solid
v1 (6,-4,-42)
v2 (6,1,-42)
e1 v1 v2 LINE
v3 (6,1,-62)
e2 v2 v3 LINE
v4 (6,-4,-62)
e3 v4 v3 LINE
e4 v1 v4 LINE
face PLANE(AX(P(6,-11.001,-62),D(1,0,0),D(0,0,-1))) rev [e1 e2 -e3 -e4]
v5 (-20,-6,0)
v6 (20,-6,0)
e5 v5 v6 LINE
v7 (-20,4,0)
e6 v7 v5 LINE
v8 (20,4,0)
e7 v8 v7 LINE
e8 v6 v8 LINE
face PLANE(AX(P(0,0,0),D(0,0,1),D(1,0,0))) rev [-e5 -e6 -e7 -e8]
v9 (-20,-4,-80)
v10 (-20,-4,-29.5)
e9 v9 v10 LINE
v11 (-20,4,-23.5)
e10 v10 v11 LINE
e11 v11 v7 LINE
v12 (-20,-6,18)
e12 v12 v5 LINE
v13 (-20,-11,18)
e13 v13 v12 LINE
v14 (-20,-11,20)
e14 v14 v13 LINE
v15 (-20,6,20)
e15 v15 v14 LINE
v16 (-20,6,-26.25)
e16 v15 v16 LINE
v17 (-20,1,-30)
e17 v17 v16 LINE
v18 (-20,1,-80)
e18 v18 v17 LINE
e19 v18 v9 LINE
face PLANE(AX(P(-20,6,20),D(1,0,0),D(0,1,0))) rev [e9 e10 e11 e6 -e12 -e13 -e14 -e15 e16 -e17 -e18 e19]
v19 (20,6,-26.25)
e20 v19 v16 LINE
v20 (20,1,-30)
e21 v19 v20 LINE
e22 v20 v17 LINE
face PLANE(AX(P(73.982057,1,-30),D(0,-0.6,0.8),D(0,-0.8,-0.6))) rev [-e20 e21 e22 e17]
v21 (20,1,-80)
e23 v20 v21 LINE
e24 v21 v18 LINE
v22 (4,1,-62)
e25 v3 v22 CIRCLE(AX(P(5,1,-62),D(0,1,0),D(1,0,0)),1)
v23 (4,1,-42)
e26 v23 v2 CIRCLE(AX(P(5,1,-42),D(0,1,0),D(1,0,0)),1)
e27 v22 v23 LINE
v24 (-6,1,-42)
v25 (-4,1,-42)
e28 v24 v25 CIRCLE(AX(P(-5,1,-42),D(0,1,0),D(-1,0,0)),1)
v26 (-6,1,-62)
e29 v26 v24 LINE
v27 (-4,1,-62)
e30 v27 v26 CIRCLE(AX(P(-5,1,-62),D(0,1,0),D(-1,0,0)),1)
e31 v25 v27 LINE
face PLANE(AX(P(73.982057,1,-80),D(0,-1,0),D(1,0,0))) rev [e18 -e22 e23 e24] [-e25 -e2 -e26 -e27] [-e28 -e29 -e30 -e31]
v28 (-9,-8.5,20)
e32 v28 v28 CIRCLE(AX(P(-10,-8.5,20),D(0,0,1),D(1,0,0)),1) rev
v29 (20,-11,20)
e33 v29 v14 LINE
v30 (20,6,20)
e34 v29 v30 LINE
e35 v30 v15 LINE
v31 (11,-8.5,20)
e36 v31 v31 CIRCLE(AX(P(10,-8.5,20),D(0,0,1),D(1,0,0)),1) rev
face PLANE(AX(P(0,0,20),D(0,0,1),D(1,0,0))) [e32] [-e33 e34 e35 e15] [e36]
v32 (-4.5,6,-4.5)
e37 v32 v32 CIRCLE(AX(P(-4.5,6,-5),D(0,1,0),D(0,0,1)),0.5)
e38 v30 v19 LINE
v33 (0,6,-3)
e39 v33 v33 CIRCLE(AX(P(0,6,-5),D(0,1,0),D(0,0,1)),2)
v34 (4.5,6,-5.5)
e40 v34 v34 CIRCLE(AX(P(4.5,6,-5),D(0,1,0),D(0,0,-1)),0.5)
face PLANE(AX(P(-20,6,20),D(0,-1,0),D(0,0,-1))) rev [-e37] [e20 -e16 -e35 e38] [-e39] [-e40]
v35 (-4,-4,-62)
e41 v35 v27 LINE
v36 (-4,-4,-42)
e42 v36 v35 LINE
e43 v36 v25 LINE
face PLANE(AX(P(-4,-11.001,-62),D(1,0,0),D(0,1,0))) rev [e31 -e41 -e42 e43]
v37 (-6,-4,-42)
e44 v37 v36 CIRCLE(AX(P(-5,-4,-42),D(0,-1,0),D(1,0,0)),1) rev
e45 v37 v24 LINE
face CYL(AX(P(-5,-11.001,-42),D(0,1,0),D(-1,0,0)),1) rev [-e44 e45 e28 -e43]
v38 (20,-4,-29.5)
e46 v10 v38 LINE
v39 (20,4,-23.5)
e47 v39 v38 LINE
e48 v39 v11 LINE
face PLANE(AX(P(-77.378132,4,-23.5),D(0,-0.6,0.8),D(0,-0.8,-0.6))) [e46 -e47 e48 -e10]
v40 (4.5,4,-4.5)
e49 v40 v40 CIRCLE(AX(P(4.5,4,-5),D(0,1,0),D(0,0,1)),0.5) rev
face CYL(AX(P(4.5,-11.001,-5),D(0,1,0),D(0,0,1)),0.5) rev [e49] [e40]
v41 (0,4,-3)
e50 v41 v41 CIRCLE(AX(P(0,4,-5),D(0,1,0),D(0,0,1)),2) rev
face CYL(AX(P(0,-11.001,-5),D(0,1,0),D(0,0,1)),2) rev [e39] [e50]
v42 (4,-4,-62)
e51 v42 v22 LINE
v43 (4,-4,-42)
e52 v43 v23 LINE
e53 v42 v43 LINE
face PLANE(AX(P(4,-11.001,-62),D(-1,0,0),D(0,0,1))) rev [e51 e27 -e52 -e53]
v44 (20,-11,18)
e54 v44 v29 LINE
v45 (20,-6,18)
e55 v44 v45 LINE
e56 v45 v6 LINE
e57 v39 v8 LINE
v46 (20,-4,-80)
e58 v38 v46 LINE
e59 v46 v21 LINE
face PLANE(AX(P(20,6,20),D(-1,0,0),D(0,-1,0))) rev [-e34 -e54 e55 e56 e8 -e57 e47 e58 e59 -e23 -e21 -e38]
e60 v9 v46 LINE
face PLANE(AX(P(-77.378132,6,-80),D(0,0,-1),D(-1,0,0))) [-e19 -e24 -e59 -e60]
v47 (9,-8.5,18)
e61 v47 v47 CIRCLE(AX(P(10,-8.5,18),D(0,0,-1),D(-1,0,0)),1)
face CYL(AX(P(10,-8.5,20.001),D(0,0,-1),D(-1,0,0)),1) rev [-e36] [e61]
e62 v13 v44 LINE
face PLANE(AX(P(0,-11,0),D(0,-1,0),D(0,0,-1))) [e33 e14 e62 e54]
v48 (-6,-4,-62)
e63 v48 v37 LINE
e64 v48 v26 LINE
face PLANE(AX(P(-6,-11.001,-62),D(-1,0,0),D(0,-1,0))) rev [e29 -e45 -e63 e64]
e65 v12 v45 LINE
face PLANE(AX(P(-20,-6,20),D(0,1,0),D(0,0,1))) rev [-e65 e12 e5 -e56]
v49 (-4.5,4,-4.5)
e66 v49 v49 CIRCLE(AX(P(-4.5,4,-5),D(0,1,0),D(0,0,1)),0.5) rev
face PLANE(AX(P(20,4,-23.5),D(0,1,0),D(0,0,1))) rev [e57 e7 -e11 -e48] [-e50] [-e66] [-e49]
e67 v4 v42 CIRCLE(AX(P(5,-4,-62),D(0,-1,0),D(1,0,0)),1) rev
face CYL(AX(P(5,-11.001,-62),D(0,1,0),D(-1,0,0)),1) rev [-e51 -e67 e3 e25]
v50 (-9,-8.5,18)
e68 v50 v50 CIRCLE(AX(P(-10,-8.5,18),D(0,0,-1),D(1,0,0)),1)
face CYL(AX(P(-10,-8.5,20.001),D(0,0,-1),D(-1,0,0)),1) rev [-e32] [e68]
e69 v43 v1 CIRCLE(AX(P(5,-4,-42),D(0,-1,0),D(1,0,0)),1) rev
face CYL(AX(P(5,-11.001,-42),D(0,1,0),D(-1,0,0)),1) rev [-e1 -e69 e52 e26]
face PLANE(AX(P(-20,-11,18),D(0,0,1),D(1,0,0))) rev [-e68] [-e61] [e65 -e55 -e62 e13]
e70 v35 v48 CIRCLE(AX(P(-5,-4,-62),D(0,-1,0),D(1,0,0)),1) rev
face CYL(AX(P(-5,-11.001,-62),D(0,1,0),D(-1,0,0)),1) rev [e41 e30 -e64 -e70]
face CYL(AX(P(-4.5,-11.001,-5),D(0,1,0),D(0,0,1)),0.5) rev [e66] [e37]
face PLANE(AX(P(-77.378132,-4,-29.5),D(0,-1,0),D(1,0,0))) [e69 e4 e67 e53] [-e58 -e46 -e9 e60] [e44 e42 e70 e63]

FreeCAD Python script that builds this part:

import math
import FreeCAD as App
import Part
import Sketcher
from FreeCAD import Vector
Q = App.Units.Quantity

doc = App.newDocument("Part")
body = doc.addObject("PartDesign::Body", "Body")

sketch1 = doc.addObject("Sketcher::SketchObject", "Sketch")
body.addObject(sketch1)
sketch1.AttachmentSupport = (doc.XY_Plane, [""])
sketch1.MapMode = "FlatFace"
sketch1.addGeometry(Part.LineSegment(Vector(-20, 6, 0), Vector(-20, -6, 0)), False)
sketch1.addGeometry(Part.LineSegment(Vector(-20, -6, 0), Vector(20, -6, 0)), False)
sketch1.addGeometry(Part.LineSegment(Vector(20, -6, 0), Vector(20, 6, 0)), False)
sketch1.addGeometry(Part.LineSegment(Vector(20, 6, 0), Vector(-20, 6, 0)), False)
sketch1.addConstraint(Sketcher.Constraint("Coincident", 0, 2, 1, 1))
sketch1.addConstraint(Sketcher.Constraint("Coincident", 1, 2, 2, 1))
sketch1.addConstraint(Sketcher.Constraint("Coincident", 2, 2, 3, 1))
sketch1.addConstraint(Sketcher.Constraint("Coincident", 3, 2, 0, 1))
sketch1.addConstraint(Sketcher.Constraint("Vertical", 0))
sketch1.addConstraint(Sketcher.Constraint("Horizontal", 1))
sketch1.addConstraint(Sketcher.Constraint("Vertical", 2))
sketch1.addConstraint(Sketcher.Constraint("Horizontal", 3))
sketch1.addConstraint(Sketcher.Constraint("Symmetric", 0, 2, 2, 2, -1, 1))
sketch1.addConstraint(Sketcher.Constraint("DistanceX", 1, 1, 1, 2, Q("40 mm")))
sketch1.addConstraint(Sketcher.Constraint("DistanceY", 0, 2, 0, 1, Q("12 mm")))
pad1 = doc.addObject("PartDesign::Pad", "Pad")
body.addObject(pad1)
pad1.Profile = sketch1
pad1.Length = 20

sketch2 = doc.addObject("Sketcher::SketchObject", "Sketch001")
body.addObject(sketch2)
sketch2.AttachmentSupport = (doc.XY_Plane, [""])
sketch2.MapMode = "FlatFace"
sketch2.addGeometry(Part.LineSegment(Vector(20, 6, 0), Vector(20, 4, 0)), False)
sketch2.addGeometry(Part.LineSegment(Vector(20, 4, 0), Vector(-20, 4, 0)), False)
sketch2.addGeometry(Part.LineSegment(Vector(-20, 4, 0), Vector(-20, 6, 0)), False)
sketch2.addGeometry(Part.LineSegment(Vector(-20, 6, 0), Vector(20, 6, 0)), False)
sketch2.addConstraint(Sketcher.Constraint("Coincident", 0, 2, 1, 1))
sketch2.addConstraint(Sketcher.Constraint("Coincident", 1, 2, 2, 1))
sketch2.addConstraint(Sketcher.Constraint("Coincident", 2, 2, 3, 1))
sketch2.addConstraint(Sketcher.Constraint("Coincident", 3, 2, 0, 1))
sketch2.addConstraint(Sketcher.Constraint("Vertical", 0))
sketch2.addConstraint(Sketcher.Constraint("Horizontal", 1))
sketch2.addConstraint(Sketcher.Constraint("Vertical", 2))
sketch2.addConstraint(Sketcher.Constraint("Horizontal", 3))
sketch2.addConstraint(Sketcher.Constraint("DistanceX", 1, 2, 1, 1, Q("40 mm")))
sketch2.addConstraint(Sketcher.Constraint("DistanceY", 0, 2, 0, 1, Q("2 mm")))
sketch2.addConstraint(Sketcher.Constraint("DistanceX", -1, 1, 0, 2, Q("20 mm")))
sketch2.addConstraint(Sketcher.Constraint("DistanceY", -1, 1, 0, 2, Q("4 mm")))
pad2 = doc.addObject("PartDesign::Pad", "Pad001")
body.addObject(pad2)
pad2.Profile = sketch2
pad2.Length = 23.5
pad2.Reversed = True

sketch3 = doc.addObject("Sketcher::SketchObject", "Sketch002")
body.addObject(sketch3)
sketch3.AttachmentSupport = (doc.XZ_Plane, [""])
sketch3.MapMode = "FlatFace"
sketch3.AttachmentOffset = App.Placement(Vector(0, 0, 6), App.Rotation())
sketch3.addGeometry(Part.LineSegment(Vector(-20, 20, 0), Vector(-20, 18, 0)), False)
sketch3.addGeometry(Part.LineSegment(Vector(-20, 18, 0), Vector(20, 18, 0)), False)
sketch3.addGeometry(Part.LineSegment(Vector(20, 18, 0), Vector(20, 20, 0)), False)
sketch3.addGeometry(Part.LineSegment(Vector(20, 20, 0), Vector(-20, 20, 0)), False)
sketch3.addConstraint(Sketcher.Constraint("Coincident", 0, 2, 1, 1))
sketch3.addConstraint(Sketcher.Constraint("Coincident", 1, 2, 2, 1))
sketch3.addConstraint(Sketcher.Constraint("Coincident", 2, 2, 3, 1))
sketch3.addConstraint(Sketcher.Constraint("Coincident", 3, 2, 0, 1))
sketch3.addConstraint(Sketcher.Constraint("Vertical", 0))
sketch3.addConstraint(Sketcher.Constraint("Horizontal", 1))
sketch3.addConstraint(Sketcher.Constraint("Vertical", 2))
sketch3.addConstraint(Sketcher.Constraint("Horizontal", 3))
sketch3.addConstraint(Sketcher.Constraint("DistanceX", 1, 1, 1, 2, Q("40 mm")))
sketch3.addConstraint(Sketcher.Constraint("DistanceY", 0, 2, 0, 1, Q("2 mm")))
sketch3.addConstraint(Sketcher.Constraint("DistanceX", 0, 2, -1, 1, Q("20 mm")))
sketch3.addConstraint(Sketcher.Constraint("DistanceY", -1, 1, 0, 2, Q("18 mm")))
pad3 = doc.addObject("PartDesign::Pad", "Pad002")
body.addObject(pad3)
pad3.Profile = sketch3
pad3.Length = 5

sketch4 = doc.addObject("Sketcher::SketchObject", "Sketch003")
body.addObject(sketch4)
sketch4.AttachmentSupport = (doc.XZ_Plane, [""])
sketch4.MapMode = "FlatFace"
sketch4.AttachmentOffset = App.Placement(Vector(0, 0, -6), App.Rotation())
sketch4.addGeometry(Part.Circle(Vector(-4.5, -5, 0), Vector(0, 0, 1), 0.5), False)
sketch4.addConstraint(Sketcher.Constraint("Diameter", 0, Q("1 mm")))
sketch4.addConstraint(Sketcher.Constraint("DistanceY", 0, 3, -1, 1, Q("5 mm")))
sketch4.addConstraint(Sketcher.Constraint("DistanceX", 0, 3, -1, 1, Q("4.5 mm")))
pocket1 = doc.addObject("PartDesign::Pocket", "Pocket")
body.addObject(pocket1)
pocket1.Profile = sketch4
pocket1.Type = "UpToFirst"
pocket1.Reversed = True

sketch5 = doc.addObject("Sketcher::SketchObject", "Sketch004")
body.addObject(sketch5)
sketch5.AttachmentSupport = (doc.XZ_Plane, [""])
sketch5.MapMode = "FlatFace"
sketch5.AttachmentOffset = App.Placement(Vector(0, 0, -6), App.Rotation())
sketch5.addGeometry(Part.Circle(Vector(4.5, -5, 0), Vector(0, 0, 1), 0.5), False)
sketch5.addConstraint(Sketcher.Constraint("Diameter", 0, Q("1 mm")))
sketch5.addConstraint(Sketcher.Constraint("DistanceY", 0, 3, -1, 1, Q("5 mm")))
sketch5.addConstraint(Sketcher.Constraint("DistanceX", -1, 1, 0, 3, Q("4.5 mm")))
pocket2 = doc.addObject("PartDesign::Pocket", "Pocket001")
body.addObject(pocket2)
pocket2.Profile = sketch5
pocket2.Type = "UpToFirst"
pocket2.Reversed = True

sketch6 = doc.addObject("Sketcher::SketchObject", "Sketch005")
body.addObject(sketch6)
sketch6.AttachmentSupport = (doc.XZ_Plane, [""])
sketch6.MapMode = "FlatFace"
sketch6.AttachmentOffset = App.Placement(Vector(0, 0, -6), App.Rotation())
sketch6.addGeometry(Part.Circle(Vector(0, -5, 0), Vector(0, 0, 1), 2), False)
sketch6.addConstraint(Sketcher.Constraint("PointOnObject", 0, 3, -2))
sketch6.addConstraint(Sketcher.Constraint("Diameter", 0, Q("4 mm")))
sketch6.addConstraint(Sketcher.Constraint("DistanceY", 0, 3, -1, 1, Q("5 mm")))
pocket3 = doc.addObject("PartDesign::Pocket", "Pocket002")
body.addObject(pocket3)
pocket3.Profile = sketch6
pocket3.Type = "UpToFirst"
pocket3.Reversed = True

sketch7 = doc.addObject("Sketcher::SketchObject", "Sketch006")
body.addObject(sketch7)
sketch7.AttachmentSupport = (doc.XY_Plane, [""])
sketch7.MapMode = "FlatFace"
sketch7.AttachmentOffset = App.Placement(Vector(0, 0, 18), App.Rotation())
sketch7.addGeometry(Part.Circle(Vector(10, -8.5, 0), Vector(0, 0, 1), 1), False)
sketch7.addConstraint(Sketcher.Constraint("Diameter", 0, Q("2 mm")))
sketch7.addConstraint(Sketcher.Constraint("DistanceX", -1, 1, 0, 3, Q("10 mm")))
sketch7.addConstraint(Sketcher.Constraint("DistanceY", 0, 3, -1, 1, Q("8.5 mm")))
pocket4 = doc.addObject("PartDesign::Pocket", "Pocket003")
body.addObject(pocket4)
pocket4.Profile = sketch7
pocket4.Type = "UpToFirst"
pocket4.Reversed = True

sketch8 = doc.addObject("Sketcher::SketchObject", "Sketch007")
body.addObject(sketch8)
sketch8.AttachmentSupport = (doc.XY_Plane, [""])
sketch8.MapMode = "FlatFace"
sketch8.AttachmentOffset = App.Placement(Vector(0, 0, 18), App.Rotation())
sketch8.addGeometry(Part.Circle(Vector(-10, -8.5, 0), Vector(0, 0, 1), 1), False)
sketch8.addConstraint(Sketcher.Constraint("Diameter", 0, Q("2 mm")))
sketch8.addConstraint(Sketcher.Constraint("DistanceX", 0, 3, -1, 1, Q("10 mm")))
sketch8.addConstraint(Sketcher.Constraint("DistanceY", 0, 3, -1, 1, Q("8.5 mm")))
pocket5 = doc.addObject("PartDesign::Pocket", "Pocket004")
body.addObject(pocket5)
pocket5.Profile = sketch8
pocket5.Type = "UpToFirst"
pocket5.Reversed = True

sketch9 = doc.addObject("Sketcher::SketchObject", "Sketch008")
body.addObject(sketch9)
sketch9.AttachmentSupport = (doc.YZ_Plane, [""])
sketch9.MapMode = "FlatFace"
sketch9.AttachmentOffset = App.Placement(Vector(0, 0, 20), App.Rotation())
sketch9.addGeometry(Part.LineSegment(Vector(4, -23.5, 0), Vector(-4, -29.5, 0)), False)
sketch9.addGeometry(Part.LineSegment(Vector(-4, -29.5, 0), Vector(-4, -80, 0)), False)
sketch9.addGeometry(Part.LineSegment(Vector(-4, -80, 0), Vector(6, -80, 0)), False)
sketch9.addGeometry(Part.LineSegment(Vector(6, -80, 0), Vector(6, -23.5, 0)), False)
sketch9.addGeometry(Part.LineSegment(Vector(6, -23.5, 0), Vector(4, -23.5, 0)), False)
sketch9.addConstraint(Sketcher.Constraint("Coincident", 0, 2, 1, 1))
sketch9.addConstraint(Sketcher.Constraint("Coincident", 1, 2, 2, 1))
sketch9.addConstraint(Sketcher.Constraint("Coincident", 2, 2, 3, 1))
sketch9.addConstraint(Sketcher.Constraint("Coincident", 3, 2, 4, 1))
sketch9.addConstraint(Sketcher.Constraint("Coincident", 4, 2, 0, 1))
sketch9.addConstraint(Sketcher.Constraint("Vertical", 1))
sketch9.addConstraint(Sketcher.Constraint("Horizontal", 2))
sketch9.addConstraint(Sketcher.Constraint("Vertical", 3))
sketch9.addConstraint(Sketcher.Constraint("Horizontal", 4))
sketch9.addConstraint(Sketcher.Constraint("DistanceX", 2, 1, 2, 2, Q("10 mm")))
sketch9.addConstraint(Sketcher.Constraint("DistanceX", 4, 2, 4, 1, Q("2 mm")))
sketch9.addConstraint(Sketcher.Constraint("Distance", 0, Q("10 mm")))
sketch9.addConstraint(Sketcher.Constraint("DistanceY", 1, 2, 1, 1, Q("50.5 mm")))
sketch9.addConstraint(Sketcher.Constraint("DistanceX", 0, 2, -1, 1, Q("4 mm")))
sketch9.addConstraint(Sketcher.Constraint("DistanceY", 1, 2, -1, 1, Q("80 mm")))
pad4 = doc.addObject("PartDesign::Pad", "Pad003")
body.addObject(pad4)
pad4.Profile = sketch9
pad4.Length = 40
pad4.Reversed = True

sketch10 = doc.addObject("Sketcher::SketchObject", "Sketch009")
body.addObject(sketch10)
sketch10.AttachmentSupport = (doc.YZ_Plane, [""])
sketch10.MapMode = "FlatFace"
sketch10.AttachmentOffset = App.Placement(Vector(0, 0, -20), App.Rotation())
sketch10.addGeometry(Part.LineSegment(Vector(1, -30, 0), Vector(6, -26, 0)), False)
sketch10.addGeometry(Part.LineSegment(Vector(6, -26, 0), Vector(6, -80, 0)), False)
sketch10.addGeometry(Part.LineSegment(Vector(6, -80, 0), Vector(1, -80, 0)), False)
sketch10.addGeometry(Part.LineSegment(Vector(1, -80, 0), Vector(1, -30, 0)), False)
sketch10.addConstraint(Sketcher.Constraint("Coincident", 0, 2, 1, 1))
sketch10.addConstraint(Sketcher.Constraint("Coincident", 1, 2, 2, 1))
sketch10.addConstraint(Sketcher.Constraint("Coincident", 2, 2, 3, 1))
sketch10.addConstraint(Sketcher.Constraint("Coincident", 3, 2, 0, 1))
sketch10.addConstraint(Sketcher.Constraint("Vertical", 1))
sketch10.addConstraint(Sketcher.Constraint("Horizontal", 2))
sketch10.addConstraint(Sketcher.Constraint("Vertical", 3))
sketch10.addConstraint(Sketcher.Constraint("DistanceX", 2, 2, 2, 1, Q("5 mm")))
sketch10.addConstraint(Sketcher.Constraint("DistanceY", 3, 1, 3, 2, Q("50 mm")))
sketch10.addConstraint(Sketcher.Constraint("DistanceX", -1, 1, 0, 2, Q("6 mm")))
sketch10.addConstraint(Sketcher.Constraint("DistanceY", 1, 2, -1, 1, Q("80 mm")))
sketch10.addConstraint(Sketcher.Constraint("DistanceY", 1, 2, 1, 1, Q("53.75 mm")))
pocket6 = doc.addObject("PartDesign::Pocket", "Pocket005")
body.addObject(pocket6)
pocket6.Profile = sketch10
pocket6.Length = 40
pocket6.Reversed = True

sketch11 = doc.addObject("Sketcher::SketchObject", "Sketch010")
body.addObject(sketch11)
sketch11.AttachmentSupport = (doc.XZ_Plane, [""])
sketch11.MapMode = "FlatFace"
sketch11.AttachmentOffset = App.Placement(Vector(0, 0, -1), App.Rotation())
sketch11.addGeometry(Part.LineSegment(Vector(-4, -42, 0), Vector(-4, -62, 0)), False)
sketch11.addGeometry(Part.ArcOfCircle(Part.Circle(Vector(-5, -62, 0), Vector(0, 0, 1), 1), math.radians(180), math.radians(360)), False)
sketch11.addGeometry(Part.LineSegment(Vector(-6, -62, 0), Vector(-6, -42, 0)), False)
sketch11.addGeometry(Part.ArcOfCircle(Part.Circle(Vector(-5, -42, 0), Vector(0, 0, 1), 1), math.radians(0), math.radians(180)), False)
sketch11.addConstraint(Sketcher.Constraint("Tangent", 0, 2, 1, 2))
sketch11.addConstraint(Sketcher.Constraint("Tangent", 1, 1, 2, 1))
sketch11.addConstraint(Sketcher.Constraint("Tangent", 2, 2, 3, 2))
sketch11.addConstraint(Sketcher.Constraint("Tangent", 3, 1, 0, 1))
sketch11.addConstraint(Sketcher.Constraint("Vertical", 0))
sketch11.addConstraint(Sketcher.Constraint("Vertical", 2))
sketch11.addConstraint(Sketcher.Constraint("Radius", 1, Q("1 mm")))
sketch11.addConstraint(Sketcher.Constraint("DistanceY", 0, 2, 0, 1, Q("20 mm")))
sketch11.addConstraint(Sketcher.Constraint("DistanceX", 1, 3, -1, 1, Q("5 mm")))
sketch11.addConstraint(Sketcher.Constraint("DistanceY", 1, 3, -1, 1, Q("62 mm")))
pocket7 = doc.addObject("PartDesign::Pocket", "Pocket006")
body.addObject(pocket7)
pocket7.Profile = sketch11
pocket7.Type = "UpToFirst"
pocket7.Reversed = True

sketch12 = doc.addObject("Sketcher::SketchObject", "Sketch011")
body.addObject(sketch12)
sketch12.AttachmentSupport = (doc.XZ_Plane, [""])
sketch12.MapMode = "FlatFace"
sketch12.AttachmentOffset = App.Placement(Vector(0, 0, -1), App.Rotation())
sketch12.addGeometry(Part.LineSegment(Vector(4, -62, 0), Vector(4, -42, 0)), False)
sketch12.addGeometry(Part.ArcOfCircle(Part.Circle(Vector(5, -42, 0), Vector(0, 0, 1), 1), math.radians(0), math.radians(180)), False)
sketch12.addGeometry(Part.LineSegment(Vector(6, -42, 0), Vector(6, -62, 0)), False)
sketch12.addGeometry(Part.ArcOfCircle(Part.Circle(Vector(5, -62, 0), Vector(0, 0, 1), 1), math.radians(180), math.radians(360)), False)
sketch12.addConstraint(Sketcher.Constraint("Tangent", 0, 2, 1, 2))
sketch12.addConstraint(Sketcher.Constraint("Tangent", 1, 1, 2, 1))
sketch12.addConstraint(Sketcher.Constraint("Tangent", 2, 2, 3, 2))
sketch12.addConstraint(Sketcher.Constraint("Tangent", 3, 1, 0, 1))
sketch12.addConstraint(Sketcher.Constraint("Vertical", 0))
sketch12.addConstraint(Sketcher.Constraint("Vertical", 2))
sketch12.addConstraint(Sketcher.Constraint("Radius", 1, Q("1 mm")))
sketch12.addConstraint(Sketcher.Constraint("DistanceY", 0, 1, 0, 2, Q("20 mm")))
sketch12.addConstraint(Sketcher.Constraint("DistanceX", -1, 1, 1, 3, Q("5 mm")))
sketch12.addConstraint(Sketcher.Constraint("DistanceY", 1, 3, -1, 1, Q("42 mm")))
pocket8 = doc.addObject("PartDesign::Pocket", "Pocket007")
body.addObject(pocket8)
pocket8.Profile = sketch12
pocket8.Type = "UpToFirst"
pocket8.Reversed = True

doc.recompute()
